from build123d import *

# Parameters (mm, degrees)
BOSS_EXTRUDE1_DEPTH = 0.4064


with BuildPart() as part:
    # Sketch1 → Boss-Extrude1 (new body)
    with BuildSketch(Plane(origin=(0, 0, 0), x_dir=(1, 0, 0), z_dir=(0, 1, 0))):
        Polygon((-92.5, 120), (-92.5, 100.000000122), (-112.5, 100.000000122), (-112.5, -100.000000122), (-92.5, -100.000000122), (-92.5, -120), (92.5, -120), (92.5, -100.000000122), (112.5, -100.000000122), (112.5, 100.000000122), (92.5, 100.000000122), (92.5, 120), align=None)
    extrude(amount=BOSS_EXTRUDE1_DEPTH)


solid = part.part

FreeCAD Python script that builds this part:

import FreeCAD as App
import Part
import Sketcher


def add_polygon(sketch, points):
    """Adds a closed chain of lines whose ends are joined by coincident constraints."""
    first, n = sketch.GeometryCount, len(points)
    for a, b in zip(points, points[1:] + points[:1]):
        sketch.addGeometry(Part.LineSegment(App.Vector(*a, 0), App.Vector(*b, 0)), False)
    for i in range(n):
        sketch.addConstraint(Sketcher.Constraint("Coincident", first + i, 2, first + (i + 1) % n, 1))

doc = App.newDocument("Part")
params = doc.addObject("Spreadsheet::Sheet", "Params")
for row, (alias, value) in enumerate([
    ("sketch1_width", "20 mm"),
    ("sketch1_width2", "185 mm"),
    ("sketch1_height", "200 mm"),
    ("pad1_length", "0.4064 mm"),
], start=1):
    params.set(f"A{row}", alias)
    params.set(f"B{row}", "=" + value)
    params.setAlias(f"B{row}", alias)

body = doc.addObject("PartDesign::Body", "Body")

sketch1 = doc.addObject("Sketcher::SketchObject", "Sketch")
body.addObject(sketch1)
sketch1.AttachmentSupport = (doc.XZ_Plane, [""])
sketch1.MapMode = "FlatFace"
add_polygon(sketch1, [(-92, -120), (-92, -100), (-112, -100), (-112, 100), (-92, 100), (-92, 120), (92, 120), (92, 100), (112, 100), (112, -100), (92, -100), (92, -120)])
sketch1.addConstraint([
    Sketcher.Constraint("Vertical", 0),
    Sketcher.Constraint("Horizontal", 1),
    Sketcher.Constraint("Vertical", 2),
    Sketcher.Constraint("Horizontal", 3),
    Sketcher.Constraint("Vertical", 4),
    Sketcher.Constraint("Horizontal", 5),
    Sketcher.Constraint("Vertical", 6),
    Sketcher.Constraint("Horizontal", 7),
    Sketcher.Constraint("Vertical", 8),
    Sketcher.Constraint("Horizontal", 9),
    Sketcher.Constraint("Vertical", 10),
    Sketcher.Constraint("Horizontal", 11),
    Sketcher.Constraint("Symmetric", 0, 2, 6, 2, -1, 1),
    Sketcher.Constraint("Symmetric", 2, 2, 8, 2, -1, 1),
    Sketcher.Constraint("Symmetric", 4, 2, 10, 2, -1, 1),
    Sketcher.Constraint("Symmetric", 3, 2, 6, 2, -2),
    Sketcher.Constraint("Equal", 9, 0),
    Sketcher.Constraint("DistanceX", 1, 2, 1, 1, 20.0),
    Sketcher.Constraint("DistanceX", 5, 1, 5, 2, 185.0),
    Sketcher.Constraint("DistanceY", 2, 1, 2, 2, 200.0),
])
sketch1.setExpression("Constraints[29]", "Params.sketch1_width")
sketch1.setExpression("Constraints[30]", "Params.sketch1_width2")
sketch1.setExpression("Constraints[31]", "Params.sketch1_height")
pad1 = doc.addObject("PartDesign::Pad", "Pad")
body.addObject(pad1)
pad1.Profile = sketch1
pad1.setExpression("Length", "Params.pad1_length")
pad1.Reversed = True

doc.recompute()
